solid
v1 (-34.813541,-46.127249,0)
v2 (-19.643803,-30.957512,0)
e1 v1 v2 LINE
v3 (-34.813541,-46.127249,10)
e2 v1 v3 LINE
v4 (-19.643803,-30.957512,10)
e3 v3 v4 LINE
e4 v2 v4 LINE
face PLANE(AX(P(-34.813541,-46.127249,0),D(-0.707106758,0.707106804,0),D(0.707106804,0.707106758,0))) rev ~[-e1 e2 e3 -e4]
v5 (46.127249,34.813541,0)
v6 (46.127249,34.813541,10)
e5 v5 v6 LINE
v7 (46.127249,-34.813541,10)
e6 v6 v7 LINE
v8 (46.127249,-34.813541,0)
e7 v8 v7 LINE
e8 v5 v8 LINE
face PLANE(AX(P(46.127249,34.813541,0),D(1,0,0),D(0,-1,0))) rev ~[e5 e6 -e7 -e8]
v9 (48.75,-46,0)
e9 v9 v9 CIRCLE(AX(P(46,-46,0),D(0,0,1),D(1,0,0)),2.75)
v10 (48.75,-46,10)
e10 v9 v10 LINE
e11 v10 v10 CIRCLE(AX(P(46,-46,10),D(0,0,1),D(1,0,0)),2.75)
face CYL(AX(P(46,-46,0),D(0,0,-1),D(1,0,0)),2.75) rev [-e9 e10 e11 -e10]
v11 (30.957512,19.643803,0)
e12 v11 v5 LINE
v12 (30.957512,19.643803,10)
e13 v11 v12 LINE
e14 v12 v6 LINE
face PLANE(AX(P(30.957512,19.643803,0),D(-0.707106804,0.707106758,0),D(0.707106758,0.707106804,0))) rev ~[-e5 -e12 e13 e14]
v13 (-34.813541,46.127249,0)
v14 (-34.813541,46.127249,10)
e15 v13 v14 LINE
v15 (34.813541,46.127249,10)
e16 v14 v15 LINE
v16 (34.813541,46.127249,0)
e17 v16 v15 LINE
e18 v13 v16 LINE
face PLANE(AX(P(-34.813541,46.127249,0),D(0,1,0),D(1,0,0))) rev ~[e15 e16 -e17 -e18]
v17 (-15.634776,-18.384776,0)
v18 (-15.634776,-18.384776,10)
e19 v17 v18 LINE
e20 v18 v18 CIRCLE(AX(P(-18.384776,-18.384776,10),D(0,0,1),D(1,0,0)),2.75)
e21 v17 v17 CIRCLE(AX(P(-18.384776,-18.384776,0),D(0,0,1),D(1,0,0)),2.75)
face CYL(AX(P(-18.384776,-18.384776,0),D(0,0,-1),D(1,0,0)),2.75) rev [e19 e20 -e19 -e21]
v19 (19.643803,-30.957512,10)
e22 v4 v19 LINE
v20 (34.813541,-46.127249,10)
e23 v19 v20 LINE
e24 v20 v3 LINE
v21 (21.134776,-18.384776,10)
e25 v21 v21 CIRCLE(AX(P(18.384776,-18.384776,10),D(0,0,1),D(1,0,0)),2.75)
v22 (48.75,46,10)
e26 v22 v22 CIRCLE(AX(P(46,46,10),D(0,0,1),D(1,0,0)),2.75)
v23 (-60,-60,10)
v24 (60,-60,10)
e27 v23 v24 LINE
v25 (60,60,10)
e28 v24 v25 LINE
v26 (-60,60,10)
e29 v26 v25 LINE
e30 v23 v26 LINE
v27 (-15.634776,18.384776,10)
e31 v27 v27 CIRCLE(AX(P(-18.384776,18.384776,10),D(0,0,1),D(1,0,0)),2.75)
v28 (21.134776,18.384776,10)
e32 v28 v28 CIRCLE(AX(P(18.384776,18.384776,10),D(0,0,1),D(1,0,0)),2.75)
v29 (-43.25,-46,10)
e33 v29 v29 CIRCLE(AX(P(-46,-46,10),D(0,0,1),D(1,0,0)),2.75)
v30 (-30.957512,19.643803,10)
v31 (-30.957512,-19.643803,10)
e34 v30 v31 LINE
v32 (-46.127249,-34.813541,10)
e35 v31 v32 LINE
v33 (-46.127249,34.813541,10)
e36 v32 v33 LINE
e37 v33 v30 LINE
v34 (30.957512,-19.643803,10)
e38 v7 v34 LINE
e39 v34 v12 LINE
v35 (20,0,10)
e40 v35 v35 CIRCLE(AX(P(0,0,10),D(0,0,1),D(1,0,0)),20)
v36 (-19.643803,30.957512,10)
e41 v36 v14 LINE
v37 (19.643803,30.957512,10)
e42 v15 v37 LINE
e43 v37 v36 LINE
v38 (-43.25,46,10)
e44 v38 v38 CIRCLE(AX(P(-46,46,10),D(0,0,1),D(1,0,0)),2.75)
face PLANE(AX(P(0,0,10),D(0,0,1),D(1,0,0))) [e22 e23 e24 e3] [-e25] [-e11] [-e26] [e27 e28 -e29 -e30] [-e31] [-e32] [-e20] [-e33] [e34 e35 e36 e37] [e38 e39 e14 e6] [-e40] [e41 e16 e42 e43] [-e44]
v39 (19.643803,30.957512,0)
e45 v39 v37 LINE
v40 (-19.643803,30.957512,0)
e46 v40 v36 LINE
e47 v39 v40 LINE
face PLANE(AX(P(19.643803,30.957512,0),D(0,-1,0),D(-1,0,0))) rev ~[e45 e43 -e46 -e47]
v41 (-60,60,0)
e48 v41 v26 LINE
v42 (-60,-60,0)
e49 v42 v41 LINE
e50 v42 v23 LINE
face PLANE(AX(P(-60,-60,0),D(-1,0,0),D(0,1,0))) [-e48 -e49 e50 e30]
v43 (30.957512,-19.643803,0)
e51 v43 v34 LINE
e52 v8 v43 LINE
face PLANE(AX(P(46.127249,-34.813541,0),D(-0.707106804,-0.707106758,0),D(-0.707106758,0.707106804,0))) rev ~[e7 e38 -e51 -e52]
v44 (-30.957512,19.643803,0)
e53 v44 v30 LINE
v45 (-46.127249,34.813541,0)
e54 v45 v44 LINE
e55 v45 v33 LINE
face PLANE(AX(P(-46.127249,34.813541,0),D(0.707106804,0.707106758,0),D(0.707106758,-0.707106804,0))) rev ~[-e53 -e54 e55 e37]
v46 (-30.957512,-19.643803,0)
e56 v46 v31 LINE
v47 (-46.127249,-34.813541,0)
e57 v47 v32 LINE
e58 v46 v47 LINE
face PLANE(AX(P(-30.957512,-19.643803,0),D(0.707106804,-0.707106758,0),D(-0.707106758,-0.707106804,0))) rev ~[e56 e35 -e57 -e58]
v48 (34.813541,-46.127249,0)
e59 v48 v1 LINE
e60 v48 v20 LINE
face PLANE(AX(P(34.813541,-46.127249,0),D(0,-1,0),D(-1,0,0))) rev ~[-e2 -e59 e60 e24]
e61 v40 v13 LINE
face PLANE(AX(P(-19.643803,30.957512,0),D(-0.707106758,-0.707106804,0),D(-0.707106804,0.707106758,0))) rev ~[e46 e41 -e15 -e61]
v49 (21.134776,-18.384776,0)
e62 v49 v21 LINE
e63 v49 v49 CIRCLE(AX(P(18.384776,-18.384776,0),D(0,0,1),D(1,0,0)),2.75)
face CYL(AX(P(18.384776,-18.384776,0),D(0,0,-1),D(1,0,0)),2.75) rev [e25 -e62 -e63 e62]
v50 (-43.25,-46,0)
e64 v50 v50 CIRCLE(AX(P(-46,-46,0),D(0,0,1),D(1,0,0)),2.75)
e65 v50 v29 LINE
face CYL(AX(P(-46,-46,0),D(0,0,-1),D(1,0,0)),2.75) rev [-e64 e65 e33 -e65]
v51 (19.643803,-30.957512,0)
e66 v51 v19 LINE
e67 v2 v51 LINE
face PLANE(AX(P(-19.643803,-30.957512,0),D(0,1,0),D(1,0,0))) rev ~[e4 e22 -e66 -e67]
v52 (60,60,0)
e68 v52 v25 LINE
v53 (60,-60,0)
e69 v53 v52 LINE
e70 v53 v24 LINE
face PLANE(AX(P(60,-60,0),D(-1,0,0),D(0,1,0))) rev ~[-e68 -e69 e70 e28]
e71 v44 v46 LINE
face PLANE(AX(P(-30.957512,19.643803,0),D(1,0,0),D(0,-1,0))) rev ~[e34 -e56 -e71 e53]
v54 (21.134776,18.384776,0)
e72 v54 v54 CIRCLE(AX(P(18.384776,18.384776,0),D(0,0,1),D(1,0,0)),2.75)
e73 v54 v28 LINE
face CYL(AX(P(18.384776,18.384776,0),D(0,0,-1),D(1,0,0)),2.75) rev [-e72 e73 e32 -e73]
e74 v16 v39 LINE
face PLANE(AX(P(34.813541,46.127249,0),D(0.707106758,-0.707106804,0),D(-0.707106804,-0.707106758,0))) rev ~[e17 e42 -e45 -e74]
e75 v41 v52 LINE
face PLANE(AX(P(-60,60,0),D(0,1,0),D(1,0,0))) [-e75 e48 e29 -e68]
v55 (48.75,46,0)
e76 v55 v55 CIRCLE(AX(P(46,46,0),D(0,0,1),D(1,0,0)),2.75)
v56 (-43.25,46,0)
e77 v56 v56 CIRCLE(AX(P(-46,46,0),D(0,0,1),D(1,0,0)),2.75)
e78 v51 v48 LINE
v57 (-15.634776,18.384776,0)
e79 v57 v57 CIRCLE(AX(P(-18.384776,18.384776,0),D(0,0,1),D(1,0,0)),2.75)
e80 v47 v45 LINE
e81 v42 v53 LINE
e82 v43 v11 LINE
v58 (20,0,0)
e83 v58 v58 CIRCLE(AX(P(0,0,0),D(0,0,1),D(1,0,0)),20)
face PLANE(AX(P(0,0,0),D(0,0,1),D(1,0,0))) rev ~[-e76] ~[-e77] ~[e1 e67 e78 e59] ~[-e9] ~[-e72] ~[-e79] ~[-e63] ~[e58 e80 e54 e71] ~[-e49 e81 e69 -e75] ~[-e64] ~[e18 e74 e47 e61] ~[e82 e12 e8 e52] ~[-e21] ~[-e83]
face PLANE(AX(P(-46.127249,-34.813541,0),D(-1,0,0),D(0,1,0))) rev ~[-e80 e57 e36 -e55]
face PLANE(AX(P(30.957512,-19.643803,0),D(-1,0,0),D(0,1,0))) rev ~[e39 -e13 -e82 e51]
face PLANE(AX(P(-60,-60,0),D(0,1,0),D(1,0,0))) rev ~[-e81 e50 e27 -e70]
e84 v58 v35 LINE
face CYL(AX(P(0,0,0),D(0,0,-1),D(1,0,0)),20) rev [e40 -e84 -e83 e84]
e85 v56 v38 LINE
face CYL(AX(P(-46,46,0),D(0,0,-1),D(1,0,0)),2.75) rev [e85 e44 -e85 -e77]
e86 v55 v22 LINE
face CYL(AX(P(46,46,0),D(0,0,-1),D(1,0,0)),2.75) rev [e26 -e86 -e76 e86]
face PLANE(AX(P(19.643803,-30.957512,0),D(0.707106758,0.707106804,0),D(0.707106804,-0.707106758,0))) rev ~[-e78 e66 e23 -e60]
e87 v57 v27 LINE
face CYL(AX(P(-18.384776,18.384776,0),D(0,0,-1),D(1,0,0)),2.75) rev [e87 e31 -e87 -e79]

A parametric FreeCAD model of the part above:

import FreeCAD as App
import Part
import Sketcher


def add_polygon(sketch, points):
    """Adds a closed chain of lines whose ends are joined by coincident constraints."""
    first, n = sketch.GeometryCount, len(points)
    for a, b in zip(points, points[1:] + points[:1]):
        sketch.addGeometry(Part.LineSegment(App.Vector(*a, 0), App.Vector(*b, 0)), False)
    for i in range(n):
        sketch.addConstraint(Sketcher.Constraint("Coincident", first + i, 2, first + (i + 1) % n, 1))

doc = App.newDocument("Part")
params = doc.addObject("Spreadsheet::Sheet", "Params")
for row, (alias, value) in enumerate([
    ("sketch1_diameter", "40 mm"),
    ("sketch1_diameter2", "5.5 mm"),
    ("sketch1_width", "120 mm"),
    ("pad1_length", "10 mm"),
], start=1):
    params.set(f"A{row}", alias)
    params.set(f"B{row}", "=" + value)
    params.setAlias(f"B{row}", alias)

body = doc.addObject("PartDesign::Body", "Body")

# Sketch on XY plane
sketch1 = body.newObject("Sketcher::SketchObject", "Sketch")
sketch1.AttachmentSupport = (doc.getObject("XY_Plane"), [""])
sketch1.MapMode = "FlatFace"
add_polygon(sketch1, [(-60, 60), (-60, -60), (60, -60), (60, 60)])  # lines 0-3
sketch1.addGeometry(Part.Circle(App.Vector(-46, -46, 0), App.Vector(0, 0, 1), 2.75), False)  # 4
sketch1.addGeometry(Part.Circle(App.Vector(-18.384776, -18.384776, 0), App.Vector(0, 0, 1), 2.75), False)  # 5
add_polygon(sketch1, [(-34.813541, -46.127249), (-19.643803, -30.957512), (19.643803, -30.957512), (34.813541, -46.127249)])  # lines 6-9
sketch1.addGeometry(Part.Circle(App.Vector(46, -46, 0), App.Vector(0, 0, 1), 2.75), False)  # 10
sketch1.addGeometry(Part.Circle(App.Vector(18.384776, -18.384776, 0), App.Vector(0, 0, 1), 2.75), False)  # 11
add_polygon(sketch1, [(-46.127249, -34.813541), (-46.127249, 34.813541), (-30.957512, 19.643803), (-30.957512, -19.643803)])  # lines 12-15
sketch1.addGeometry(Part.Circle(App.Vector(-18.384776, 18.384776, 0), App.Vector(0, 0, 1), 2.75), False)  # 16
sketch1.addGeometry(Part.Circle(App.Vector(-46, 46, 0), App.Vector(0, 0, 1), 2.75), False)  # 17
sketch1.addGeometry(Part.Circle(App.Vector(0, 0, 0), App.Vector(0, 0, 1), 20), False)  # 18
sketch1.addGeometry(Part.Circle(App.Vector(18.384776, 18.384776, 0), App.Vector(0, 0, 1), 2.75), False)  # 19
add_polygon(sketch1, [(46.127249, -34.813541), (30.957512, -19.643803), (30.957512, 19.643803), (46.127249, 34.813541)])  # lines 20-23
add_polygon(sketch1, [(34.813541, 46.127249), (19.643803, 30.957512), (-19.643803, 30.957512), (-34.813541, 46.127249)])  # lines 24-27
sketch1.addGeometry(Part.Circle(App.Vector(46, 46, 0), App.Vector(0, 0, 1), 2.75), False)  # 28
sketch1.addConstraint([
    Sketcher.Constraint("Vertical", 0),
    Sketcher.Constraint("Horizontal", 1),
    Sketcher.Constraint("Vertical", 2),
    Sketcher.Constraint("Horizontal", 3),
    Sketcher.Constraint("Horizontal", 7),
    Sketcher.Constraint("Horizontal", 9),
    Sketcher.Constraint("Vertical", 12),
    Sketcher.Constraint("Vertical", 14),
    Sketcher.Constraint("Vertical", 21),
    Sketcher.Constraint("Vertical", 23),
    Sketcher.Constraint("Horizontal", 25),
    Sketcher.Constraint("Horizontal", 27),
    Sketcher.Constraint("Coincident", 18, 3, -1, 1),
    Sketcher.Constraint("Equal", 4, 5),
    Sketcher.Constraint("Equal", 5, 10),
    Sketcher.Constraint("Equal", 10, 11),
    Sketcher.Constraint("Equal", 11, 16),
    Sketcher.Constraint("Equal", 16, 17),
    Sketcher.Constraint("Equal", 17, 19),
    Sketcher.Constraint("Equal", 19, 28),
    Sketcher.Constraint("Symmetric", 11, 3, 16, 3, -1, 1),
    Sketcher.Constraint("Symmetric", 10, 3, 17, 3, -1, 1),
    Sketcher.Constraint("Symmetric", 5, 3, 19, 3, -1, 1),
    Sketcher.Constraint("Symmetric", 4, 3, 28, 3, -1, 1),
    Sketcher.Constraint("Symmetric", 0, 2, 2, 2, -1, 1),
    Sketcher.Constraint("Symmetric", 13, 2, 20, 2, -1, 1),
    Sketcher.Constraint("Symmetric", 15, 2, 22, 2, -1, 1),
    Sketcher.Constraint("Symmetric", 6, 2, 24, 2, -1, 1),
    Sketcher.Constraint("Symmetric", 8, 2, 26, 2, -1, 1),
    Sketcher.Constraint("Symmetric", 4, 3, 10, 3, -2),
    Sketcher.Constraint("Symmetric", 5, 3, 11, 3, -2),
    Sketcher.Constraint("Perpendicular", 6, 8),
    Sketcher.Constraint("Parallel", 8, 13),
    Sketcher.Constraint("Perpendicular", 13, 15),
    Sketcher.Constraint("Perpendicular", 15, 20),
    Sketcher.Constraint("Perpendicular", 20, 22),
    Sketcher.Constraint("Parallel", 22, 24),
    Sketcher.Constraint("Perpendicular", 24, 26),
    Sketcher.Constraint("Horizontal", 14, 2, 20, 2),
    Sketcher.Constraint("Horizontal", 12, 2, 22, 2),
    Sketcher.Constraint("Vertical", 7, 2, 24, 2),
    Sketcher.Constraint("Equal", 3, 0),
    Sketcher.Constraint("Equal", 27, 12),
    Sketcher.Constraint("Equal", 25, 14),
    Sketcher.Constraint("Diameter", 18, 40.0),
    Sketcher.Constraint("Diameter", 4, 5.5),
    Sketcher.Constraint("DistanceX", 1, 1, 1, 2, 120.0),
    Sketcher.Constraint("DistanceX", 4, 3, -1, 1, 46.0),
    Sketcher.Constraint("DistanceY", 4, 3, -1, 1, 46.0),
    Sketcher.Constraint("DistanceX", 9, 2, 9, 1, 69.627082),
    Sketcher.Constraint("Distance", 6, 21.453249),
    Sketcher.Constraint("DistanceY", 8, 2, -1, 1, 46.127249),
    Sketcher.Constraint("DistanceX", 12, 2, -1, 1, 46.127249),
    Sketcher.Constraint("DistanceX", 5, 3, 11, 3, 36.769552),
    Sketcher.Constraint("DistanceY", 5, 3, 16, 3, 36.769552),
])
sketch1.setExpression("Constraints[64]", "Params.sketch1_diameter")
sketch1.setExpression("Constraints[65]", "Params.sketch1_diameter2")
sketch1.setExpression("Constraints[66]", "Params.sketch1_width")
pad1 = body.newObject("PartDesign::Pad", "Pad")
pad1.Profile = sketch1
pad1.setExpression("Length", "Params.pad1_length")

doc.recompute()
